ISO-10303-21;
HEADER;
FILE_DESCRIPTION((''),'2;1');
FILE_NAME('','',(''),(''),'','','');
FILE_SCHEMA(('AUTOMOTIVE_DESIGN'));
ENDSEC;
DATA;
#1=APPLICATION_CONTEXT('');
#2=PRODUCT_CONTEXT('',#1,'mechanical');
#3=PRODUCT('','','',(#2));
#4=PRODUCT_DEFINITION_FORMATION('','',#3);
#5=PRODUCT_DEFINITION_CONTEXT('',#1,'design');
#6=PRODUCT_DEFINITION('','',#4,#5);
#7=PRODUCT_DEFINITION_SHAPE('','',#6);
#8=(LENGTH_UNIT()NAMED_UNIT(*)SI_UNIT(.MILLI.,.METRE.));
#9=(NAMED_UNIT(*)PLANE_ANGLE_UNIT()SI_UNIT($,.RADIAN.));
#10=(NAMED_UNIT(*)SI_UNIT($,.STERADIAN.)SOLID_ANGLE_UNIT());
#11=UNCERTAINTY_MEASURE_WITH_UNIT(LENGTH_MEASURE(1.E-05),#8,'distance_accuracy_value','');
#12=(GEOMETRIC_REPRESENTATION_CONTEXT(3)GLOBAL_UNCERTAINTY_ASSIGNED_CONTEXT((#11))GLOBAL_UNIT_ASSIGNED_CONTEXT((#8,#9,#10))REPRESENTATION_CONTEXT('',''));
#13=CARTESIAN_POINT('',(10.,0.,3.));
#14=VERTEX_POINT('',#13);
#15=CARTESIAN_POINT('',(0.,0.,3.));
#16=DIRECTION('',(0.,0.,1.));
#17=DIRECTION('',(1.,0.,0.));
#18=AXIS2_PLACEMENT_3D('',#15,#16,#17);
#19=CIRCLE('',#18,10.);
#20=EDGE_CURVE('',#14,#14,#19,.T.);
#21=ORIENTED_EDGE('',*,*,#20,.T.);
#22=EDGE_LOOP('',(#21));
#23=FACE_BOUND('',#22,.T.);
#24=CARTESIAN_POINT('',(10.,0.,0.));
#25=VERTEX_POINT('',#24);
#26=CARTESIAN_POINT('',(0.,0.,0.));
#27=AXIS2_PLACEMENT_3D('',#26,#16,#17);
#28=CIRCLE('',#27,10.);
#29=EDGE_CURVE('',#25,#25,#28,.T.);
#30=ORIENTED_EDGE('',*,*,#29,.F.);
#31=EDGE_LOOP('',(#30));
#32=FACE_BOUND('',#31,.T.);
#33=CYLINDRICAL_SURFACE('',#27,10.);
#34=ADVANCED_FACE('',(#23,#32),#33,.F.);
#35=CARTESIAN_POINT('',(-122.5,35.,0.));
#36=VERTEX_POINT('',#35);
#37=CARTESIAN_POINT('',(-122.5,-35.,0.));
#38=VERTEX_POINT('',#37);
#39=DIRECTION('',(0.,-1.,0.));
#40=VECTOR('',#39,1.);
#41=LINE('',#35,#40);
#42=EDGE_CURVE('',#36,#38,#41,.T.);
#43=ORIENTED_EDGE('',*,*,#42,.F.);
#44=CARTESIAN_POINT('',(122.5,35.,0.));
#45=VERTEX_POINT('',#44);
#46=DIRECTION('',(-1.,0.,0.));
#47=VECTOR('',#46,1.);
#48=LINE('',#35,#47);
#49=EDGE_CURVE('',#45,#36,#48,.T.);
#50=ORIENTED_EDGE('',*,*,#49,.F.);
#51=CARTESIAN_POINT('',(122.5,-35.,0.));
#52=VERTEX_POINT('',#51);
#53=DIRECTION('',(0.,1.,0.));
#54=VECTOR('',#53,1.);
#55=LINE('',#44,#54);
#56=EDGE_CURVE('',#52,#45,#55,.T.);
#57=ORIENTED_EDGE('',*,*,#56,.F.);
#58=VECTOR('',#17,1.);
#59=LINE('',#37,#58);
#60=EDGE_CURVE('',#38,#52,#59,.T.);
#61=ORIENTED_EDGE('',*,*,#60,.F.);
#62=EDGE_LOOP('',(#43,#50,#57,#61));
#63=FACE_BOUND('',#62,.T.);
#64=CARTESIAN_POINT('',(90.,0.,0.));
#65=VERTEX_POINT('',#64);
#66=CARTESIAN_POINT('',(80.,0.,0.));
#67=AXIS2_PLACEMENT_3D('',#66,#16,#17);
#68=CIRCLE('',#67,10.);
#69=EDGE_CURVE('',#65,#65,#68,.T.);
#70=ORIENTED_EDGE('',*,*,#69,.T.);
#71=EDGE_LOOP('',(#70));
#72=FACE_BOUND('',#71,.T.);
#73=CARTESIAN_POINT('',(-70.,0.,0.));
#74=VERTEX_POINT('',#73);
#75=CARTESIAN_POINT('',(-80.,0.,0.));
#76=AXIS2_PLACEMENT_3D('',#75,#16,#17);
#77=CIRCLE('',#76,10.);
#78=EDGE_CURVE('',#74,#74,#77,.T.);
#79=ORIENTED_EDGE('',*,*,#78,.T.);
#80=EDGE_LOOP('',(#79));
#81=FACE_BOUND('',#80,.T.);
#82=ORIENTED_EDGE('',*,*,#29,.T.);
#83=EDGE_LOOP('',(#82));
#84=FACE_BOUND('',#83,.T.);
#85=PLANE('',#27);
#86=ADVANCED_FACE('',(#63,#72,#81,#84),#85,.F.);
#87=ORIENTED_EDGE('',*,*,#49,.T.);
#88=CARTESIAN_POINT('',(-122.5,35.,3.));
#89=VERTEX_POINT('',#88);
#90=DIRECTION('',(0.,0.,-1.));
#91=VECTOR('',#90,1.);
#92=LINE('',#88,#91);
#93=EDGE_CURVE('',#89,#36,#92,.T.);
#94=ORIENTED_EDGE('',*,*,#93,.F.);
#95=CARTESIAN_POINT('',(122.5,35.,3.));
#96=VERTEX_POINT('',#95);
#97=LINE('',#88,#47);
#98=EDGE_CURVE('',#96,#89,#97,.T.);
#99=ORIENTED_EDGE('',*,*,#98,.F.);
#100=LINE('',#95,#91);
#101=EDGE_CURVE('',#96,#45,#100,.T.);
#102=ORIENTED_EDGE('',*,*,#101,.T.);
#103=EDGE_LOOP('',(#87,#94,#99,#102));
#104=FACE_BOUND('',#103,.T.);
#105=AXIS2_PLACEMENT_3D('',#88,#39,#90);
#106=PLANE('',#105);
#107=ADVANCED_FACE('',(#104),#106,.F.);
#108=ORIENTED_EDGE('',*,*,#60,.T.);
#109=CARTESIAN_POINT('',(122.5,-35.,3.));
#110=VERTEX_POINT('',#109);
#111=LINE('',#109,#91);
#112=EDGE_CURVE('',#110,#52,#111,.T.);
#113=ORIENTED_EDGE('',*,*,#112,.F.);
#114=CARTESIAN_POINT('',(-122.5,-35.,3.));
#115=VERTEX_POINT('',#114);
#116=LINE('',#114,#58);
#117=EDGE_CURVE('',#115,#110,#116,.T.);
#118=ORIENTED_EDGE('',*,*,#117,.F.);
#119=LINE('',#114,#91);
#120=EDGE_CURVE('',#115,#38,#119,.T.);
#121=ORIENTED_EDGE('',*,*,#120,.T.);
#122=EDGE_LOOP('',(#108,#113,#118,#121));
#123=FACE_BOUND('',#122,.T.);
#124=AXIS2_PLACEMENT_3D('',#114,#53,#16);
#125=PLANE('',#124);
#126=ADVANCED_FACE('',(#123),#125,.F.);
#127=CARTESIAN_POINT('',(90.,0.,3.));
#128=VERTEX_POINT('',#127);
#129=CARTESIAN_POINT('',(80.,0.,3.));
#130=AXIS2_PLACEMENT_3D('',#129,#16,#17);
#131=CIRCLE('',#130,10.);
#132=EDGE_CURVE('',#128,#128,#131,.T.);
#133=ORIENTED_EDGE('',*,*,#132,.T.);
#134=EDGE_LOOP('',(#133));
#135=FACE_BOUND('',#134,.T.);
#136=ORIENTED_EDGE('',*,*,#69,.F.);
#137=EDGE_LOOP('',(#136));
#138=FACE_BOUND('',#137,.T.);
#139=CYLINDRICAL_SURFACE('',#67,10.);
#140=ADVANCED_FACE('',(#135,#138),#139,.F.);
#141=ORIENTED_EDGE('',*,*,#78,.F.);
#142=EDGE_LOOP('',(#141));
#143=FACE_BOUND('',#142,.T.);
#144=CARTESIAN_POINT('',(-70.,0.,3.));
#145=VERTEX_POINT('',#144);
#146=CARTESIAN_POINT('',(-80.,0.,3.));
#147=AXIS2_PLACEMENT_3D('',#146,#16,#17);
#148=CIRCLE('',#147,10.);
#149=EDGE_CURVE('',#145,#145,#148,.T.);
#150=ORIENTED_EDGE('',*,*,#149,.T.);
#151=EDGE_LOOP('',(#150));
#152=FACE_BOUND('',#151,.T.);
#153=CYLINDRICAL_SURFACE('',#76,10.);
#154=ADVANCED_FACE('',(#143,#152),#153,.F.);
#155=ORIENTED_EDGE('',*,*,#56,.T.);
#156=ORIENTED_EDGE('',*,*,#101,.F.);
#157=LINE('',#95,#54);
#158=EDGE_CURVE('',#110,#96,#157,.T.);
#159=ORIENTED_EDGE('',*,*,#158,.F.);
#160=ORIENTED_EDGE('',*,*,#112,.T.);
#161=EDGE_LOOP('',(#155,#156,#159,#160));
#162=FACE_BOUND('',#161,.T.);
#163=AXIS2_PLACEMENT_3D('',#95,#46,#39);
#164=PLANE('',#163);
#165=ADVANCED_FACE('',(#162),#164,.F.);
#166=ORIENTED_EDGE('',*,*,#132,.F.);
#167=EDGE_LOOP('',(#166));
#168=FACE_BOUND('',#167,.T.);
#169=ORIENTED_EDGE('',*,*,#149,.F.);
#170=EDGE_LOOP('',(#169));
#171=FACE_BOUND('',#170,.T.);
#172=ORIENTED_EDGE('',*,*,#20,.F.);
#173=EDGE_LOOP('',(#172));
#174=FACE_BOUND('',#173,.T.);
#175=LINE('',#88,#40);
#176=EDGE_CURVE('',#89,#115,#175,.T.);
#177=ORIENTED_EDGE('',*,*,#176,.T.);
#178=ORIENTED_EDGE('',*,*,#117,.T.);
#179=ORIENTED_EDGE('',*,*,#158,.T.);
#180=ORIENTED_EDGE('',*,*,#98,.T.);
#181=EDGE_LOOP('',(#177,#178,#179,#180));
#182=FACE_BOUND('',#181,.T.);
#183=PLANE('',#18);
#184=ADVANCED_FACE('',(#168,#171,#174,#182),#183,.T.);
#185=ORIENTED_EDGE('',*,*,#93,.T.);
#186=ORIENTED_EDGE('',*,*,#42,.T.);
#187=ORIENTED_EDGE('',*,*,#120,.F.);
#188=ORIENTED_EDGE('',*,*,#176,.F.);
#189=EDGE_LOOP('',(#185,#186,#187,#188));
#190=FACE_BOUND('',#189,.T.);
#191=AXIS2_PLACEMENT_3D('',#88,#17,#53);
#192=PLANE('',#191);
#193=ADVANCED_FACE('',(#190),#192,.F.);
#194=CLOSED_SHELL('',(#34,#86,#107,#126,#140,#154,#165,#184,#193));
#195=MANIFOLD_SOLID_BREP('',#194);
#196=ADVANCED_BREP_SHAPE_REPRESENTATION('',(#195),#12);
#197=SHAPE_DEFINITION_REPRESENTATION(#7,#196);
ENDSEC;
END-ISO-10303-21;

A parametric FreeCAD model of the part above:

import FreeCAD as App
import Part
import Sketcher
from FreeCAD import Vector
Q = App.Units.Quantity


def add_polygon(sketch, points):
    """Adds a closed chain of lines whose ends are joined by coincident constraints."""
    first, n = sketch.GeometryCount, len(points)
    for a, b in zip(points, points[1:] + points[:1]):
        sketch.addGeometry(Part.LineSegment(App.Vector(*a, 0), App.Vector(*b, 0)), False)
    for i in range(n):
        sketch.addConstraint(Sketcher.Constraint("Coincident", first + i, 2, first + (i + 1) % n, 1))

doc = App.newDocument("Part")
body = doc.addObject("PartDesign::Body", "Body")

# Sketch on XY plane
sketch1 = doc.addObject("Sketcher::SketchObject", "Sketch")
body.addObject(sketch1)
sketch1.AttachmentSupport = (doc.XY_Plane, [""])
sketch1.MapMode = "FlatFace"
add_polygon(sketch1, [(-122, 35), (-122, -35), (122, -35), (122, 35)])  # lines 0-3
sketch1.addConstraint([
    Sketcher.Constraint("Vertical", 0),
    Sketcher.Constraint("Horizontal", 1),
    Sketcher.Constraint("Vertical", 2),
    Sketcher.Constraint("Horizontal", 3),
    Sketcher.Constraint("Symmetric", 0, 2, 2, 2, -1, 1),
    Sketcher.Constraint("DistanceX", 1, 1, 1, 2, Q("245 mm")),
    Sketcher.Constraint("DistanceY", 0, 2, 0, 1, Q("70 mm")),
])
pad1 = doc.addObject("PartDesign::Pad", "Pad")
body.addObject(pad1)
pad1.Profile = sketch1
pad1.Length = 3

# Sketch on XY plane
sketch2 = doc.addObject("Sketcher::SketchObject", "Sketch001")
body.addObject(sketch2)
sketch2.AttachmentSupport = (doc.XY_Plane, [""])
sketch2.MapMode = "FlatFace"
sketch2.AttachmentOffset = App.Placement(Vector(0, 0, 3), App.Rotation())
sketch2.addGeometry([
    Part.Circle(Vector(-80, 0, 0), Vector(0, 0, 1), 10),
    Part.Circle(Vector(0, 0, 0), Vector(0, 0, 1), 10),
    Part.Circle(Vector(80, 0, 0), Vector(0, 0, 1), 10),
], False)
sketch2.addConstraint([
    Sketcher.Constraint("Coincident", 1, 3, -1, 1),
    Sketcher.Constraint("Equal", 0, 1),
    Sketcher.Constraint("Equal", 1, 2),
    Sketcher.Constraint("Symmetric", 0, 3, 2, 3, -1, 1),
    Sketcher.Constraint("PointOnObject", 0, 3, -1),
    Sketcher.Constraint("Diameter", 0, Q("20 mm")),
    Sketcher.Constraint("DistanceX", 0, 3, -1, 1, Q("80 mm")),
])
pocket1 = doc.addObject("PartDesign::Pocket", "Pocket")
body.addObject(pocket1)
pocket1.Profile = sketch2
pocket1.Length = 3

doc.recompute()
